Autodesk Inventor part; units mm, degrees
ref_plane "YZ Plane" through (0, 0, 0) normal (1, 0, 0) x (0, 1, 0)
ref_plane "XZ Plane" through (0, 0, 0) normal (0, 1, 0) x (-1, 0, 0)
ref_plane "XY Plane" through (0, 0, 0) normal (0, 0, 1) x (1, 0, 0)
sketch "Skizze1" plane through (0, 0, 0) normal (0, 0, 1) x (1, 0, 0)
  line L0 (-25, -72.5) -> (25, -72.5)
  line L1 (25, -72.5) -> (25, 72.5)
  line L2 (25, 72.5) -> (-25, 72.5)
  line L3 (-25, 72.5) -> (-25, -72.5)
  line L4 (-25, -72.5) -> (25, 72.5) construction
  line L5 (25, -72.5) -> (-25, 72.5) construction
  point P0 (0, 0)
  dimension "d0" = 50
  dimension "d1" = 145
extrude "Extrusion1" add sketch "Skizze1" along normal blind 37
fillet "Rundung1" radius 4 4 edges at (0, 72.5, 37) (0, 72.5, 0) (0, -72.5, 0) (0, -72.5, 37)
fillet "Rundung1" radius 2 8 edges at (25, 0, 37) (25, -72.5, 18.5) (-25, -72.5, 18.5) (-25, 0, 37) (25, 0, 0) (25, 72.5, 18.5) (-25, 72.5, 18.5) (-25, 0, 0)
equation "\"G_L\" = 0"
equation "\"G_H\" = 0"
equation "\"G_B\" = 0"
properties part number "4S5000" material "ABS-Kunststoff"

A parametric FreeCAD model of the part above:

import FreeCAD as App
import Part
import Sketcher
Q = App.Units.Quantity


def edges_at(feature, points):
    """Names of the edges that pass closest to the given points."""
    edges = feature.Shape.Edges
    near = lambda p: min(range(len(edges)), key=lambda i: edges[i].distToShape(Part.Vertex(*p))[0])
    return sorted({f"Edge{near(p) + 1}" for p in points})

doc = App.newDocument("Part")
body = doc.addObject("PartDesign::Body", "Body")

# Sketch on XY plane
sketch1 = doc.addObject("Sketcher::SketchObject", "Sketch")
body.addObject(sketch1)
sketch1.AttachmentSupport = (doc.XY_Plane, [""])
sketch1.MapMode = "FlatFace"
sketch1.addGeometry([
    Part.LineSegment(App.Vector(-25, 72, 0), App.Vector(-25, -72, 0)),
    Part.LineSegment(App.Vector(-25, -72, 0), App.Vector(25, -72, 0)),
    Part.LineSegment(App.Vector(25, -72, 0), App.Vector(25, 72, 0)),
    Part.LineSegment(App.Vector(25, 72, 0), App.Vector(-25, 72, 0)),
], False)
sketch1.addConstraint([
    Sketcher.Constraint("Coincident", 0, 2, 1, 1),
    Sketcher.Constraint("Coincident", 1, 2, 2, 1),
    Sketcher.Constraint("Coincident", 2, 2, 3, 1),
    Sketcher.Constraint("Coincident", 3, 2, 0, 1),
    Sketcher.Constraint("Vertical", 0),
    Sketcher.Constraint("Horizontal", 1),
    Sketcher.Constraint("Vertical", 2),
    Sketcher.Constraint("Horizontal", 3),
    Sketcher.Constraint("Symmetric", 0, 2, 2, 2, -1, 1),
    Sketcher.Constraint("DistanceX", 1, 1, 1, 2, Q("50 mm")),
    Sketcher.Constraint("DistanceY", 0, 2, 0, 1, Q("145 mm")),
])
pad1 = doc.addObject("PartDesign::Pad", "Pad")
body.addObject(pad1)
pad1.Profile = sketch1
pad1.Length = 37
doc.recompute()

fillet = doc.addObject("PartDesign::Fillet", "Fillet")
body.addObject(fillet)
fillet.Base = (pad1, edges_at(pad1, [
    (0, 72.5, 37),
    (0, 72.5, 0),
    (0, -72.5, 0),
    (0, -72.5, 37),
]))
fillet.Radius = 4
doc.recompute()

fillet2 = doc.addObject("PartDesign::Fillet", "Fillet001")
body.addObject(fillet2)
fillet2.Base = (fillet, edges_at(fillet, [
    (25, 0, 37),
    (25, -72.5, 18.5),
    (-25, -72.5, 18.5),
    (-25, 0, 37),
    (25, 0, 0),
    (25, 72.5, 18.5),
    (-25, 72.5, 18.5),
    (-25, 0, 0),
]))
fillet2.Radius = 2

doc.recompute()
